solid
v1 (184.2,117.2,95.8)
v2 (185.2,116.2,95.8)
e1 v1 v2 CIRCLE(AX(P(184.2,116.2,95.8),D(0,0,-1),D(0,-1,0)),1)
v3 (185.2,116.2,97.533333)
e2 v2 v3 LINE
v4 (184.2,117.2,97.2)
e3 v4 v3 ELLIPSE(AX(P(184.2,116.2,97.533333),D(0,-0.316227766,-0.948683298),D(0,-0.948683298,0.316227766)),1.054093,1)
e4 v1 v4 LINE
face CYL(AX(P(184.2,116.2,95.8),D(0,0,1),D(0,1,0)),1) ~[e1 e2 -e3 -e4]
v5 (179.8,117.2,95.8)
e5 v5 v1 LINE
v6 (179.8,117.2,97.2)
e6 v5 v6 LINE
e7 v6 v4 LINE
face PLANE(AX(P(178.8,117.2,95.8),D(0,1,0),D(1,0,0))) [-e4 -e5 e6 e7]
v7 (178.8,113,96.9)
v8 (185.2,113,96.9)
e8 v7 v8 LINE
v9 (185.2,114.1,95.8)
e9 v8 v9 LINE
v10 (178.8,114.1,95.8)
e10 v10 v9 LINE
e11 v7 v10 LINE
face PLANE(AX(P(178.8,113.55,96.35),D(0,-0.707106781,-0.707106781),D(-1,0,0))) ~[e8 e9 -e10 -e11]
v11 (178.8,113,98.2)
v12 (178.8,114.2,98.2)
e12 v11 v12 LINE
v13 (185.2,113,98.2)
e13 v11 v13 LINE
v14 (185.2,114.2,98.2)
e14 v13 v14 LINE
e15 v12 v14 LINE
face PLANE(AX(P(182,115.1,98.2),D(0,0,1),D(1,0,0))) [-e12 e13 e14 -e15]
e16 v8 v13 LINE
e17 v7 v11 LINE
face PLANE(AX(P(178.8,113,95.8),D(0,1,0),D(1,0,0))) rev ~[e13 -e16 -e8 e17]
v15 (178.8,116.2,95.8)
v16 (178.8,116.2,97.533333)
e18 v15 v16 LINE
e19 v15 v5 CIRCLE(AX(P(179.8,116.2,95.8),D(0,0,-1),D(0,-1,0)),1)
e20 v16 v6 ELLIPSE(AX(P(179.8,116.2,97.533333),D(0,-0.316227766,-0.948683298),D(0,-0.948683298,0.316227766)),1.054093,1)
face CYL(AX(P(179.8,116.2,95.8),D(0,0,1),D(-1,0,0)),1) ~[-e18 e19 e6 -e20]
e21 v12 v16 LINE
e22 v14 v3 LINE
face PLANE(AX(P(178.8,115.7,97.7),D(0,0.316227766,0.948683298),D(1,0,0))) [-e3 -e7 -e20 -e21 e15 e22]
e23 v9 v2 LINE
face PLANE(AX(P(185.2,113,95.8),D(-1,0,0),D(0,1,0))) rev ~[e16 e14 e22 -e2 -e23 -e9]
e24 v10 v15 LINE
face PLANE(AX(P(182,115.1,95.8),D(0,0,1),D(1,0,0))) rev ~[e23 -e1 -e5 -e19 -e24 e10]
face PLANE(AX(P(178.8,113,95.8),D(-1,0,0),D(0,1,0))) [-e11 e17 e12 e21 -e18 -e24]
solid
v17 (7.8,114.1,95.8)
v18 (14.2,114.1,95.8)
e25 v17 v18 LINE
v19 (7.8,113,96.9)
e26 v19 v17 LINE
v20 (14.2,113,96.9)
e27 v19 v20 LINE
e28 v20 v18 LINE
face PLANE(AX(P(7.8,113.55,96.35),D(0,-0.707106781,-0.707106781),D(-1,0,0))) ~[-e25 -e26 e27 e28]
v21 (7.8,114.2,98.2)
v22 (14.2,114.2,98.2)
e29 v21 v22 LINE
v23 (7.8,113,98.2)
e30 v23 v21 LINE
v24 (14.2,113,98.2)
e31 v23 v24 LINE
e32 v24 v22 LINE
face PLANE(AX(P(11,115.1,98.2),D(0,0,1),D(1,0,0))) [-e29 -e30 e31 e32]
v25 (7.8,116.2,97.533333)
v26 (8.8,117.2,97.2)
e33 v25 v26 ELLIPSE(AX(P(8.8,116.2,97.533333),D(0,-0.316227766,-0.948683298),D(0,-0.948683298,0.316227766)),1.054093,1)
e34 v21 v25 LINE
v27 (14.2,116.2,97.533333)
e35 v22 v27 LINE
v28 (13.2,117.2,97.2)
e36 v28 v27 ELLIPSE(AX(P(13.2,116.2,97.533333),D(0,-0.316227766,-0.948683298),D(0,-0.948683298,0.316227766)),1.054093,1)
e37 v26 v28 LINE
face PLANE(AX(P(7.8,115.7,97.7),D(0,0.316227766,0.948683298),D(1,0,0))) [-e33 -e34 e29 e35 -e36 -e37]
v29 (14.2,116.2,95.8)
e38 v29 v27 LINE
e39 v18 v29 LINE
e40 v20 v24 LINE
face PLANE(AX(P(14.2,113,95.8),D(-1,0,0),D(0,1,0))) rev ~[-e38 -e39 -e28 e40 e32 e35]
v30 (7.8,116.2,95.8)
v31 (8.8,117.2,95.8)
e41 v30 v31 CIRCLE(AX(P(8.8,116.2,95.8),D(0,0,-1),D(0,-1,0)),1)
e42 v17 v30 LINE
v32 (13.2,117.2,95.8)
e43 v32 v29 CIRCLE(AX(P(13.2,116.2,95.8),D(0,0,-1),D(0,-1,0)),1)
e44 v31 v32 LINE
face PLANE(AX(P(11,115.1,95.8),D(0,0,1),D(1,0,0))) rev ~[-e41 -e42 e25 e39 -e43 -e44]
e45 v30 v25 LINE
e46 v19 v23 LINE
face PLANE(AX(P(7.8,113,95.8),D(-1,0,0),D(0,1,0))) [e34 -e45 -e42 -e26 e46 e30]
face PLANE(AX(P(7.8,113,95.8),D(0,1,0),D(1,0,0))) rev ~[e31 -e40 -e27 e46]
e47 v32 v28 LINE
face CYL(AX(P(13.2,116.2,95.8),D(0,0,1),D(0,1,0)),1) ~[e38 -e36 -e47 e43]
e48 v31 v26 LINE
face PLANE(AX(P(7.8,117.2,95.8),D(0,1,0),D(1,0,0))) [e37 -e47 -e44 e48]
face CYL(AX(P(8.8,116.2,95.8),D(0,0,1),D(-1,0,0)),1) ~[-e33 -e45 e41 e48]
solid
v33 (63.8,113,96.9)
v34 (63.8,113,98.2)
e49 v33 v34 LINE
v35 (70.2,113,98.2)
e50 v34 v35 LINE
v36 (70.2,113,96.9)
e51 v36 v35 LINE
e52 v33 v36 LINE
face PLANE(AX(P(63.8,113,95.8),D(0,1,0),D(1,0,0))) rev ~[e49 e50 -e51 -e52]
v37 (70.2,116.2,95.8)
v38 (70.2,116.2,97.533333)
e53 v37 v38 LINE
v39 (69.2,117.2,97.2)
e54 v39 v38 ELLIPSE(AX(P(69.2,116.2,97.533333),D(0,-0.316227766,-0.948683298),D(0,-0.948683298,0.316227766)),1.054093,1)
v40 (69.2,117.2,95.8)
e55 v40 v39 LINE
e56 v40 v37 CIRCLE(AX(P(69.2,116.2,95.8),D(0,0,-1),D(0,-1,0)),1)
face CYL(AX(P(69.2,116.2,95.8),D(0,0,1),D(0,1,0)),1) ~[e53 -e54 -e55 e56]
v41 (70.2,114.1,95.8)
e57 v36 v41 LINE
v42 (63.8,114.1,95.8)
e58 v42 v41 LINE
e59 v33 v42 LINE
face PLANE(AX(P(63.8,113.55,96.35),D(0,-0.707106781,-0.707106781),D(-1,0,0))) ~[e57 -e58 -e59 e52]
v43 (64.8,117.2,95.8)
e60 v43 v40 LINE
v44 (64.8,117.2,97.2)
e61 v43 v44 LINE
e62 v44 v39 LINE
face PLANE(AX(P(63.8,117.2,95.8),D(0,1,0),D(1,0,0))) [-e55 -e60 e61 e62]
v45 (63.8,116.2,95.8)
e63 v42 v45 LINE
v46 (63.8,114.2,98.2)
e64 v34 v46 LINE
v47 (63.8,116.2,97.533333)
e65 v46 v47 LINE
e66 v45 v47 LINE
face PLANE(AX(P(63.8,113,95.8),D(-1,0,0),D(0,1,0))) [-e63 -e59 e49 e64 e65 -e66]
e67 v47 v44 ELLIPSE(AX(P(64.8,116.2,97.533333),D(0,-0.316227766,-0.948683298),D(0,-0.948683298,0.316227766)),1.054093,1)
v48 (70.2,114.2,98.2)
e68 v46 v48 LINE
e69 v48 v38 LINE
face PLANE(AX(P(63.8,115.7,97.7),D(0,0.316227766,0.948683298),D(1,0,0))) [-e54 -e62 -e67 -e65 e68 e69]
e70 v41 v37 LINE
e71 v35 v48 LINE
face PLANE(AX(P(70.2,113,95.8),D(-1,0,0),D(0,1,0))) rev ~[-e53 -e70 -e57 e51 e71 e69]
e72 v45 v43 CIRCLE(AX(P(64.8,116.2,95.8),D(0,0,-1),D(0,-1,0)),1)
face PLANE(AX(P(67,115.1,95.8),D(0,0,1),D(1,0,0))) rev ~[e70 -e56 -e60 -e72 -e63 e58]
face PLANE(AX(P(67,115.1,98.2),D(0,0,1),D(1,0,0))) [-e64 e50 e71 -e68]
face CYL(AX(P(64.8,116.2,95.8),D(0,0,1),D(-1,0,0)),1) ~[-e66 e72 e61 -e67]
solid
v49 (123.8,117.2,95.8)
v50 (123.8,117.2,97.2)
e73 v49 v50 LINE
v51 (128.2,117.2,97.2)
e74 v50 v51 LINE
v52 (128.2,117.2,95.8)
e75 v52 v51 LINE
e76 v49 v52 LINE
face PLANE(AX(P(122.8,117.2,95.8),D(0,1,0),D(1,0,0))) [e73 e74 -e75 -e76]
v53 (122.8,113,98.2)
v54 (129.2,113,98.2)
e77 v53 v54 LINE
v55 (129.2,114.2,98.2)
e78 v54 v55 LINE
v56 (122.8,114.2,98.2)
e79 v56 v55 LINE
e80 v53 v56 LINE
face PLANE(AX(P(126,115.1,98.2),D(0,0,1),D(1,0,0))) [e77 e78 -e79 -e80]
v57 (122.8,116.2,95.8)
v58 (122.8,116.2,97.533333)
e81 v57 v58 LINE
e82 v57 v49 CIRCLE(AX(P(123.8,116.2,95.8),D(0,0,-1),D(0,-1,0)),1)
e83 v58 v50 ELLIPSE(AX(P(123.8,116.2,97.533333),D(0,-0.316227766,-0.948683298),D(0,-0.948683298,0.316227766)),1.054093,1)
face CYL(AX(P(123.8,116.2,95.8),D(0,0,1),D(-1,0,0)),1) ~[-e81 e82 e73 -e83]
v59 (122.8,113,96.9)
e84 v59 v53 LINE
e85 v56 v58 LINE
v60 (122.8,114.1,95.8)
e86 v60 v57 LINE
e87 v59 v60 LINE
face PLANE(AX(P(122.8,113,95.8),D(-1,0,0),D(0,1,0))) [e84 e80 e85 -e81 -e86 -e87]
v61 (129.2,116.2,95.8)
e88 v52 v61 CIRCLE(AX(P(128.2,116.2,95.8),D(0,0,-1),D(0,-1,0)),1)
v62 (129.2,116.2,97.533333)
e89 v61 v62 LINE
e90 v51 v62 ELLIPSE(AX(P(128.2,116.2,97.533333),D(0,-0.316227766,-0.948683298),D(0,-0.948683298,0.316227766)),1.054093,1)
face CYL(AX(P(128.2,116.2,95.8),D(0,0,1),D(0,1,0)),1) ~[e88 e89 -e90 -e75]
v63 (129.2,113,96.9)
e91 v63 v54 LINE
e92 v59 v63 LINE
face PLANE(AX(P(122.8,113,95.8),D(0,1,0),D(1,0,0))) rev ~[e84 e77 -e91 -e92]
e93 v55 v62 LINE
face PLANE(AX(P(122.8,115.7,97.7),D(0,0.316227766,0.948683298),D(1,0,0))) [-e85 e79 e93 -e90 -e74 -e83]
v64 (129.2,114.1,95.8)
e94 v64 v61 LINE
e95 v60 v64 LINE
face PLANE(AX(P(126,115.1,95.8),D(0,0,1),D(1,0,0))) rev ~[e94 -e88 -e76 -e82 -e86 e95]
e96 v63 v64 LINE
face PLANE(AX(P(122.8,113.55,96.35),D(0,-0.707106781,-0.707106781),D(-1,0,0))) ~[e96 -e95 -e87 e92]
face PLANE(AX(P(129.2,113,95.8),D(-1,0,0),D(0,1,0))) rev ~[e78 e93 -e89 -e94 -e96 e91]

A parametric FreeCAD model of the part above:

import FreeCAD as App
import Part
import Sketcher


def edges_at(feature, points):
    """Names of the edges that pass closest to the given points."""
    edges = feature.Shape.Edges
    near = lambda p: min(range(len(edges)), key=lambda i: edges[i].distToShape(Part.Vertex(*p))[0])
    return sorted({f"Edge{near(p) + 1}" for p in points})

doc = App.newDocument("Part")
body = doc.addObject("PartDesign::Body", "Body")

sketch1 = body.newObject("Sketcher::SketchObject", "Sketch")
sketch1.AttachmentSupport = (doc.getObject("XY_Plane"), [""])
sketch1.MapMode = "FlatFace"
sketch1.AttachmentOffset = App.Placement(App.Vector(0, 0, 95.8), App.Rotation())
sketch1.addGeometry(Part.LineSegment(App.Vector(63.8, 117.2, 0), App.Vector(63.8, 113, 0)), False)
sketch1.addGeometry(Part.LineSegment(App.Vector(63.8, 113, 0), App.Vector(70.2, 113, 0)), False)
sketch1.addGeometry(Part.LineSegment(App.Vector(70.2, 113, 0), App.Vector(70.2, 117.2, 0)), False)
sketch1.addGeometry(Part.LineSegment(App.Vector(70.2, 117.2, 0), App.Vector(63.8, 117.2, 0)), False)
sketch1.addConstraint(Sketcher.Constraint("Coincident", 0, 2, 1, 1))
sketch1.addConstraint(Sketcher.Constraint("Coincident", 1, 2, 2, 1))
sketch1.addConstraint(Sketcher.Constraint("Coincident", 2, 2, 3, 1))
sketch1.addConstraint(Sketcher.Constraint("Coincident", 3, 2, 0, 1))
sketch1.addConstraint(Sketcher.Constraint("Vertical", 0))
sketch1.addConstraint(Sketcher.Constraint("Horizontal", 1))
sketch1.addConstraint(Sketcher.Constraint("Vertical", 2))
sketch1.addConstraint(Sketcher.Constraint("Horizontal", 3))
sketch1.addConstraint(Sketcher.Constraint("DistanceX", 1, 1, 1, 2, 6.4))
sketch1.addConstraint(Sketcher.Constraint("DistanceY", 0, 2, 0, 1, 4.2))
sketch1.addConstraint(Sketcher.Constraint("DistanceY", -1, 1, 0, 2, 113.0))
sketch1.addConstraint(Sketcher.Constraint("DistanceX", -1, 1, 0, 2, 63.8))
pad1 = body.newObject("PartDesign::Pad", "Pad")
pad1.Profile = sketch1
pad1.Length = 2.4
doc.recompute()

chamfer = body.newObject("PartDesign::Chamfer", "Chamfer")
chamfer.Base = (pad1, edges_at(pad1, [(67, 113, 95.8)]))
chamfer.Size = 1.1
doc.recompute()

chamfer2 = body.newObject("PartDesign::Chamfer", "Chamfer001")
chamfer2.Base = (chamfer, edges_at(chamfer, [(67, 117.2, 98.2)]))
chamfer2.ChamferType = "Two distances"
chamfer2.Size = 3
chamfer2.Size2 = 1
body2 = doc.addObject("PartDesign::Body", "Body001")

sketch2 = body2.newObject("Sketcher::SketchObject", "Sketch001")
sketch2.AttachmentSupport = (doc.getObject("XY_Plane001"), [""])
sketch2.MapMode = "FlatFace"
sketch2.AttachmentOffset = App.Placement(App.Vector(0, 0, 95.8), App.Rotation())
sketch2.addGeometry(Part.LineSegment(App.Vector(122.8, 117.2, 0), App.Vector(122.8, 113, 0)), False)
sketch2.addGeometry(Part.LineSegment(App.Vector(122.8, 113, 0), App.Vector(129.2, 113, 0)), False)
sketch2.addGeometry(Part.LineSegment(App.Vector(129.2, 113, 0), App.Vector(129.2, 117.2, 0)), False)
sketch2.addGeometry(Part.LineSegment(App.Vector(129.2, 117.2, 0), App.Vector(122.8, 117.2, 0)), False)
sketch2.addConstraint(Sketcher.Constraint("Coincident", 0, 2, 1, 1))
sketch2.addConstraint(Sketcher.Constraint("Coincident", 1, 2, 2, 1))
sketch2.addConstraint(Sketcher.Constraint("Coincident", 2, 2, 3, 1))
sketch2.addConstraint(Sketcher.Constraint("Coincident", 3, 2, 0, 1))
sketch2.addConstraint(Sketcher.Constraint("Vertical", 0))
sketch2.addConstraint(Sketcher.Constraint("Horizontal", 1))
sketch2.addConstraint(Sketcher.Constraint("Vertical", 2))
sketch2.addConstraint(Sketcher.Constraint("Horizontal", 3))
sketch2.addConstraint(Sketcher.Constraint("DistanceX", 1, 1, 1, 2, 6.4))
sketch2.addConstraint(Sketcher.Constraint("DistanceY", 0, 2, 0, 1, 4.2))
sketch2.addConstraint(Sketcher.Constraint("DistanceY", -1, 1, 0, 2, 113.0))
sketch2.addConstraint(Sketcher.Constraint("DistanceX", -1, 1, 0, 2, 122.8))
pad2 = body2.newObject("PartDesign::Pad", "Pad001")
pad2.Profile = sketch2
pad2.Length = 2.4
doc.recompute()

chamfer3 = body2.newObject("PartDesign::Chamfer", "Chamfer002")
chamfer3.Base = (pad2, edges_at(pad2, [(126, 113, 95.8)]))
chamfer3.Size = 1.1
doc.recompute()

chamfer4 = body2.newObject("PartDesign::Chamfer", "Chamfer003")
chamfer4.Base = (chamfer3, edges_at(chamfer3, [(126, 117.2, 98.2)]))
chamfer4.ChamferType = "Two distances"
chamfer4.Size = 3
chamfer4.Size2 = 1
body3 = doc.addObject("PartDesign::Body", "Body002")

sketch3 = body3.newObject("Sketcher::SketchObject", "Sketch002")
sketch3.AttachmentSupport = (doc.getObject("XY_Plane002"), [""])
sketch3.MapMode = "FlatFace"
sketch3.AttachmentOffset = App.Placement(App.Vector(0, 0, 95.8), App.Rotation())
sketch3.addGeometry(Part.LineSegment(App.Vector(178.8, 117.2, 0), App.Vector(178.8, 113, 0)), False)
sketch3.addGeometry(Part.LineSegment(App.Vector(178.8, 113, 0), App.Vector(185.2, 113, 0)), False)
sketch3.addGeometry(Part.LineSegment(App.Vector(185.2, 113, 0), App.Vector(185.2, 117.2, 0)), False)
sketch3.addGeometry(Part.LineSegment(App.Vector(185.2, 117.2, 0), App.Vector(178.8, 117.2, 0)), False)
sketch3.addConstraint(Sketcher.Constraint("Coincident", 0, 2, 1, 1))
sketch3.addConstraint(Sketcher.Constraint("Coincident", 1, 2, 2, 1))
sketch3.addConstraint(Sketcher.Constraint("Coincident", 2, 2, 3, 1))
sketch3.addConstraint(Sketcher.Constraint("Coincident", 3, 2, 0, 1))
sketch3.addConstraint(Sketcher.Constraint("Vertical", 0))
sketch3.addConstraint(Sketcher.Constraint("Horizontal", 1))
sketch3.addConstraint(Sketcher.Constraint("Vertical", 2))
sketch3.addConstraint(Sketcher.Constraint("Horizontal", 3))
sketch3.addConstraint(Sketcher.Constraint("DistanceX", 1, 1, 1, 2, 6.4))
sketch3.addConstraint(Sketcher.Constraint("DistanceY", 0, 2, 0, 1, 4.2))
sketch3.addConstraint(Sketcher.Constraint("DistanceY", -1, 1, 0, 2, 113.0))
sketch3.addConstraint(Sketcher.Constraint("DistanceX", -1, 1, 0, 2, 178.8))
pad3 = body3.newObject("PartDesign::Pad", "Pad002")
pad3.Profile = sketch3
pad3.Length = 2.4
doc.recompute()

chamfer5 = body3.newObject("PartDesign::Chamfer", "Chamfer004")
chamfer5.Base = (pad3, edges_at(pad3, [(182, 113, 95.8)]))
chamfer5.Size = 1.1
doc.recompute()

chamfer6 = body3.newObject("PartDesign::Chamfer", "Chamfer005")
chamfer6.Base = (chamfer5, edges_at(chamfer5, [(182, 117.2, 98.2)]))
chamfer6.ChamferType = "Two distances"
chamfer6.Size = 3
chamfer6.Size2 = 1
body4 = doc.addObject("PartDesign::Body", "Body003")
body4.AllowCompound = True

sketch4 = body4.newObject("Sketcher::SketchObject", "Sketch003")
sketch4.AttachmentSupport = (doc.getObject("XY_Plane003"), [""])
sketch4.MapMode = "FlatFace"
sketch4.AttachmentOffset = App.Placement(App.Vector(0, 0, 95.8), App.Rotation())
sketch4.addGeometry(Part.LineSegment(App.Vector(7.8, 117.2, 0), App.Vector(7.8, 113, 0)), False)
sketch4.addGeometry(Part.LineSegment(App.Vector(7.8, 113, 0), App.Vector(14.2, 113, 0)), False)
sketch4.addGeometry(Part.LineSegment(App.Vector(14.2, 113, 0), App.Vector(14.2, 117.2, 0)), False)
sketch4.addGeometry(Part.LineSegment(App.Vector(14.2, 117.2, 0), App.Vector(7.8, 117.2, 0)), False)
sketch4.addConstraint(Sketcher.Constraint("Coincident", 0, 2, 1, 1))
sketch4.addConstraint(Sketcher.Constraint("Coincident", 1, 2, 2, 1))
sketch4.addConstraint(Sketcher.Constraint("Coincident", 2, 2, 3, 1))
sketch4.addConstraint(Sketcher.Constraint("Coincident", 3, 2, 0, 1))
sketch4.addConstraint(Sketcher.Constraint("Vertical", 0))
sketch4.addConstraint(Sketcher.Constraint("Horizontal", 1))
sketch4.addConstraint(Sketcher.Constraint("Vertical", 2))
sketch4.addConstraint(Sketcher.Constraint("Horizontal", 3))
sketch4.addConstraint(Sketcher.Constraint("DistanceX", 1, 1, 1, 2, 6.4))
sketch4.addConstraint(Sketcher.Constraint("DistanceY", 0, 2, 0, 1, 4.2))
sketch4.addConstraint(Sketcher.Constraint("DistanceY", -1, 1, 0, 2, 113.0))
sketch4.addConstraint(Sketcher.Constraint("DistanceX", -1, 1, 0, 2, 7.8))
pad4 = body4.newObject("PartDesign::Pad", "Pad003")
pad4.Profile = sketch4
pad4.Length = 2.4
doc.recompute()

chamfer7 = body4.newObject("PartDesign::Chamfer", "Chamfer006")
chamfer7.Base = (pad4, edges_at(pad4, [(11, 113, 95.8)]))
chamfer7.Size = 1.1
doc.recompute()

chamfer8 = body4.newObject("PartDesign::Chamfer", "Chamfer007")
chamfer8.Base = (chamfer7, edges_at(chamfer7, [(11, 117.2, 98.2)]))
chamfer8.ChamferType = "Two distances"
chamfer8.Size = 3
chamfer8.Size2 = 1
doc.recompute()

boolean = body4.newObject("PartDesign::Boolean", "Boolean")
boolean.Type = "Fuse"
boolean.addObjects([body])
doc.recompute()

boolean2 = body4.newObject("PartDesign::Boolean", "Boolean001")
boolean2.Type = "Fuse"
boolean2.addObjects([body2])
doc.recompute()

boolean3 = body4.newObject("PartDesign::Boolean", "Boolean002")
boolean3.Type = "Fuse"
boolean3.addObjects([body3])
doc.recompute()

fillet = body4.newObject("PartDesign::Fillet", "Fillet")
fillet.Base = (boolean3, edges_at(boolean3, [
    (7.8, 117.2, 96.5),
    (14.2, 117.2, 96.5),
    (63.8, 117.2, 96.5),
    (70.2, 117.2, 96.5),
    (122.8, 117.2, 96.5),
    (129.2, 117.2, 96.5),
    (178.8, 117.2, 96.5),
    (185.2, 117.2, 96.5),
]))
fillet.Radius = 1

doc.recompute()
